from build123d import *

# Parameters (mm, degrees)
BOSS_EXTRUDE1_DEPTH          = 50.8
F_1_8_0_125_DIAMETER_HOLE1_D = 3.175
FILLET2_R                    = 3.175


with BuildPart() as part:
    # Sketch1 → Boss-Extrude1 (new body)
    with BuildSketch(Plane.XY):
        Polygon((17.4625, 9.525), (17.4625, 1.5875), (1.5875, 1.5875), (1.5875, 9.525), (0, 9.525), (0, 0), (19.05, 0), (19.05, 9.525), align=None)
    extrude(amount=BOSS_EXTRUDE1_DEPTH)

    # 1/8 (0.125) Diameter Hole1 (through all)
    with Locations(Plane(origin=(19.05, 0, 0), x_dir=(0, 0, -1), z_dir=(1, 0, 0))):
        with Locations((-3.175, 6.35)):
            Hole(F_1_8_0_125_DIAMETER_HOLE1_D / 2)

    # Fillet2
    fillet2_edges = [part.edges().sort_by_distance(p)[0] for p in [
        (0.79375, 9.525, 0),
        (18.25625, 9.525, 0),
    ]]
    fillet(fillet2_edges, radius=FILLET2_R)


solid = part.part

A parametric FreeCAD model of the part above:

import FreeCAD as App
import Part
import Sketcher

V = App.Vector
Q = App.Units.Quantity


def edges_at(feature, points):
    """Names of the edges that pass closest to the given points."""
    edges = feature.Shape.Edges
    near = lambda p: min(range(len(edges)), key=lambda i: edges[i].distToShape(Part.Vertex(*p))[0])
    return sorted({f"Edge{near(p) + 1}" for p in points})


def add_polygon(sketch, points):
    """Adds a closed chain of lines whose ends are joined by coincident constraints."""
    first, n = sketch.GeometryCount, len(points)
    for a, b in zip(points, points[1:] + points[:1]):
        sketch.addGeometry(Part.LineSegment(App.Vector(*a, 0), App.Vector(*b, 0)), False)
    for i in range(n):
        sketch.addConstraint(Sketcher.Constraint("Coincident", first + i, 2, first + (i + 1) % n, 1))

doc = App.newDocument("Part")
body = doc.addObject("PartDesign::Body", "Body")

# Sketch on XY plane
sketch1 = body.newObject("Sketcher::SketchObject", "Sketch")
sketch1.AttachmentSupport = (doc.getObject("XY_Plane"), [""])
sketch1.MapMode = "FlatFace"
add_polygon(sketch1, [(17.5, 9.5), (17.5, 1.6), (1.6, 1.6), (1.6, 9.5), (0, 9.5), (0, 0), (19.1, 0), (19.1, 9.5)])  # lines 0-7
sketch1.addConstraint(Sketcher.Constraint("Vertical", 0))
sketch1.addConstraint(Sketcher.Constraint("Horizontal", 1))
sketch1.addConstraint(Sketcher.Constraint("Vertical", 2))
sketch1.addConstraint(Sketcher.Constraint("Horizontal", 3))
sketch1.addConstraint(Sketcher.Constraint("Vertical", 4))
sketch1.addConstraint(Sketcher.Constraint("Horizontal", 5))
sketch1.addConstraint(Sketcher.Constraint("Vertical", 6))
sketch1.addConstraint(Sketcher.Constraint("Horizontal", 7))
sketch1.addConstraint(Sketcher.Constraint("Coincident", 4, 2, -1, 1))
sketch1.addConstraint(Sketcher.Constraint("Horizontal", 3, 2, 6, 2))
sketch1.addConstraint(Sketcher.Constraint("Equal", 3, 7))
sketch1.addConstraint(Sketcher.Constraint("DistanceX", 5, 1, 5, 2, Q("0.75 in")))
sketch1.addConstraint(Sketcher.Constraint("DistanceX", 1, 2, 1, 1, Q("0.625 in")))
sketch1.addConstraint(Sketcher.Constraint("DistanceY", 0, 2, 0, 1, Q("0.3125 in")))
sketch1.addConstraint(Sketcher.Constraint("DistanceY", 4, 2, 4, 1, Q("0.375 in")))
pad1 = body.newObject("PartDesign::Pad", "Pad")
pad1.Profile = sketch1
pad1.Length = Q("2 in")

# Sketch on YZ plane
sketch2 = body.newObject("Sketcher::SketchObject", "Sketch001")
sketch2.AttachmentSupport = (doc.getObject("YZ_Plane"), [""])
sketch2.MapMode = "FlatFace"
sketch2.AttachmentOffset = App.Placement(V(0, 0, 0.75 * 25.4), App.Rotation())
sketch2.addGeometry(Part.Circle(V(6.3, 3.2, 0), V(0, 0, 1), 1.6), False)
sketch2.addConstraint(Sketcher.Constraint("Diameter", 0, Q("0.125 in")))
sketch2.addConstraint(Sketcher.Constraint("DistanceX", -1, 1, 0, 3, Q("0.25 in")))
sketch2.addConstraint(Sketcher.Constraint("DistanceY", -1, 1, 0, 3, Q("0.125 in")))
doc.recompute()
hole = body.newObject("PartDesign::Hole", "Hole")
hole.Profile = sketch2
hole.ThreadType = "None"
hole.Diameter = Q("0.125 in")
hole.DepthType = "ThroughAll"
doc.recompute()

fillet = body.newObject("PartDesign::Fillet", "Fillet")
fillet.Base = (hole, edges_at(hole, [(0.794, 9.525, 0), (18.256, 9.525, 0)]))
fillet.Radius = Q("0.125 in")

doc.recompute()
